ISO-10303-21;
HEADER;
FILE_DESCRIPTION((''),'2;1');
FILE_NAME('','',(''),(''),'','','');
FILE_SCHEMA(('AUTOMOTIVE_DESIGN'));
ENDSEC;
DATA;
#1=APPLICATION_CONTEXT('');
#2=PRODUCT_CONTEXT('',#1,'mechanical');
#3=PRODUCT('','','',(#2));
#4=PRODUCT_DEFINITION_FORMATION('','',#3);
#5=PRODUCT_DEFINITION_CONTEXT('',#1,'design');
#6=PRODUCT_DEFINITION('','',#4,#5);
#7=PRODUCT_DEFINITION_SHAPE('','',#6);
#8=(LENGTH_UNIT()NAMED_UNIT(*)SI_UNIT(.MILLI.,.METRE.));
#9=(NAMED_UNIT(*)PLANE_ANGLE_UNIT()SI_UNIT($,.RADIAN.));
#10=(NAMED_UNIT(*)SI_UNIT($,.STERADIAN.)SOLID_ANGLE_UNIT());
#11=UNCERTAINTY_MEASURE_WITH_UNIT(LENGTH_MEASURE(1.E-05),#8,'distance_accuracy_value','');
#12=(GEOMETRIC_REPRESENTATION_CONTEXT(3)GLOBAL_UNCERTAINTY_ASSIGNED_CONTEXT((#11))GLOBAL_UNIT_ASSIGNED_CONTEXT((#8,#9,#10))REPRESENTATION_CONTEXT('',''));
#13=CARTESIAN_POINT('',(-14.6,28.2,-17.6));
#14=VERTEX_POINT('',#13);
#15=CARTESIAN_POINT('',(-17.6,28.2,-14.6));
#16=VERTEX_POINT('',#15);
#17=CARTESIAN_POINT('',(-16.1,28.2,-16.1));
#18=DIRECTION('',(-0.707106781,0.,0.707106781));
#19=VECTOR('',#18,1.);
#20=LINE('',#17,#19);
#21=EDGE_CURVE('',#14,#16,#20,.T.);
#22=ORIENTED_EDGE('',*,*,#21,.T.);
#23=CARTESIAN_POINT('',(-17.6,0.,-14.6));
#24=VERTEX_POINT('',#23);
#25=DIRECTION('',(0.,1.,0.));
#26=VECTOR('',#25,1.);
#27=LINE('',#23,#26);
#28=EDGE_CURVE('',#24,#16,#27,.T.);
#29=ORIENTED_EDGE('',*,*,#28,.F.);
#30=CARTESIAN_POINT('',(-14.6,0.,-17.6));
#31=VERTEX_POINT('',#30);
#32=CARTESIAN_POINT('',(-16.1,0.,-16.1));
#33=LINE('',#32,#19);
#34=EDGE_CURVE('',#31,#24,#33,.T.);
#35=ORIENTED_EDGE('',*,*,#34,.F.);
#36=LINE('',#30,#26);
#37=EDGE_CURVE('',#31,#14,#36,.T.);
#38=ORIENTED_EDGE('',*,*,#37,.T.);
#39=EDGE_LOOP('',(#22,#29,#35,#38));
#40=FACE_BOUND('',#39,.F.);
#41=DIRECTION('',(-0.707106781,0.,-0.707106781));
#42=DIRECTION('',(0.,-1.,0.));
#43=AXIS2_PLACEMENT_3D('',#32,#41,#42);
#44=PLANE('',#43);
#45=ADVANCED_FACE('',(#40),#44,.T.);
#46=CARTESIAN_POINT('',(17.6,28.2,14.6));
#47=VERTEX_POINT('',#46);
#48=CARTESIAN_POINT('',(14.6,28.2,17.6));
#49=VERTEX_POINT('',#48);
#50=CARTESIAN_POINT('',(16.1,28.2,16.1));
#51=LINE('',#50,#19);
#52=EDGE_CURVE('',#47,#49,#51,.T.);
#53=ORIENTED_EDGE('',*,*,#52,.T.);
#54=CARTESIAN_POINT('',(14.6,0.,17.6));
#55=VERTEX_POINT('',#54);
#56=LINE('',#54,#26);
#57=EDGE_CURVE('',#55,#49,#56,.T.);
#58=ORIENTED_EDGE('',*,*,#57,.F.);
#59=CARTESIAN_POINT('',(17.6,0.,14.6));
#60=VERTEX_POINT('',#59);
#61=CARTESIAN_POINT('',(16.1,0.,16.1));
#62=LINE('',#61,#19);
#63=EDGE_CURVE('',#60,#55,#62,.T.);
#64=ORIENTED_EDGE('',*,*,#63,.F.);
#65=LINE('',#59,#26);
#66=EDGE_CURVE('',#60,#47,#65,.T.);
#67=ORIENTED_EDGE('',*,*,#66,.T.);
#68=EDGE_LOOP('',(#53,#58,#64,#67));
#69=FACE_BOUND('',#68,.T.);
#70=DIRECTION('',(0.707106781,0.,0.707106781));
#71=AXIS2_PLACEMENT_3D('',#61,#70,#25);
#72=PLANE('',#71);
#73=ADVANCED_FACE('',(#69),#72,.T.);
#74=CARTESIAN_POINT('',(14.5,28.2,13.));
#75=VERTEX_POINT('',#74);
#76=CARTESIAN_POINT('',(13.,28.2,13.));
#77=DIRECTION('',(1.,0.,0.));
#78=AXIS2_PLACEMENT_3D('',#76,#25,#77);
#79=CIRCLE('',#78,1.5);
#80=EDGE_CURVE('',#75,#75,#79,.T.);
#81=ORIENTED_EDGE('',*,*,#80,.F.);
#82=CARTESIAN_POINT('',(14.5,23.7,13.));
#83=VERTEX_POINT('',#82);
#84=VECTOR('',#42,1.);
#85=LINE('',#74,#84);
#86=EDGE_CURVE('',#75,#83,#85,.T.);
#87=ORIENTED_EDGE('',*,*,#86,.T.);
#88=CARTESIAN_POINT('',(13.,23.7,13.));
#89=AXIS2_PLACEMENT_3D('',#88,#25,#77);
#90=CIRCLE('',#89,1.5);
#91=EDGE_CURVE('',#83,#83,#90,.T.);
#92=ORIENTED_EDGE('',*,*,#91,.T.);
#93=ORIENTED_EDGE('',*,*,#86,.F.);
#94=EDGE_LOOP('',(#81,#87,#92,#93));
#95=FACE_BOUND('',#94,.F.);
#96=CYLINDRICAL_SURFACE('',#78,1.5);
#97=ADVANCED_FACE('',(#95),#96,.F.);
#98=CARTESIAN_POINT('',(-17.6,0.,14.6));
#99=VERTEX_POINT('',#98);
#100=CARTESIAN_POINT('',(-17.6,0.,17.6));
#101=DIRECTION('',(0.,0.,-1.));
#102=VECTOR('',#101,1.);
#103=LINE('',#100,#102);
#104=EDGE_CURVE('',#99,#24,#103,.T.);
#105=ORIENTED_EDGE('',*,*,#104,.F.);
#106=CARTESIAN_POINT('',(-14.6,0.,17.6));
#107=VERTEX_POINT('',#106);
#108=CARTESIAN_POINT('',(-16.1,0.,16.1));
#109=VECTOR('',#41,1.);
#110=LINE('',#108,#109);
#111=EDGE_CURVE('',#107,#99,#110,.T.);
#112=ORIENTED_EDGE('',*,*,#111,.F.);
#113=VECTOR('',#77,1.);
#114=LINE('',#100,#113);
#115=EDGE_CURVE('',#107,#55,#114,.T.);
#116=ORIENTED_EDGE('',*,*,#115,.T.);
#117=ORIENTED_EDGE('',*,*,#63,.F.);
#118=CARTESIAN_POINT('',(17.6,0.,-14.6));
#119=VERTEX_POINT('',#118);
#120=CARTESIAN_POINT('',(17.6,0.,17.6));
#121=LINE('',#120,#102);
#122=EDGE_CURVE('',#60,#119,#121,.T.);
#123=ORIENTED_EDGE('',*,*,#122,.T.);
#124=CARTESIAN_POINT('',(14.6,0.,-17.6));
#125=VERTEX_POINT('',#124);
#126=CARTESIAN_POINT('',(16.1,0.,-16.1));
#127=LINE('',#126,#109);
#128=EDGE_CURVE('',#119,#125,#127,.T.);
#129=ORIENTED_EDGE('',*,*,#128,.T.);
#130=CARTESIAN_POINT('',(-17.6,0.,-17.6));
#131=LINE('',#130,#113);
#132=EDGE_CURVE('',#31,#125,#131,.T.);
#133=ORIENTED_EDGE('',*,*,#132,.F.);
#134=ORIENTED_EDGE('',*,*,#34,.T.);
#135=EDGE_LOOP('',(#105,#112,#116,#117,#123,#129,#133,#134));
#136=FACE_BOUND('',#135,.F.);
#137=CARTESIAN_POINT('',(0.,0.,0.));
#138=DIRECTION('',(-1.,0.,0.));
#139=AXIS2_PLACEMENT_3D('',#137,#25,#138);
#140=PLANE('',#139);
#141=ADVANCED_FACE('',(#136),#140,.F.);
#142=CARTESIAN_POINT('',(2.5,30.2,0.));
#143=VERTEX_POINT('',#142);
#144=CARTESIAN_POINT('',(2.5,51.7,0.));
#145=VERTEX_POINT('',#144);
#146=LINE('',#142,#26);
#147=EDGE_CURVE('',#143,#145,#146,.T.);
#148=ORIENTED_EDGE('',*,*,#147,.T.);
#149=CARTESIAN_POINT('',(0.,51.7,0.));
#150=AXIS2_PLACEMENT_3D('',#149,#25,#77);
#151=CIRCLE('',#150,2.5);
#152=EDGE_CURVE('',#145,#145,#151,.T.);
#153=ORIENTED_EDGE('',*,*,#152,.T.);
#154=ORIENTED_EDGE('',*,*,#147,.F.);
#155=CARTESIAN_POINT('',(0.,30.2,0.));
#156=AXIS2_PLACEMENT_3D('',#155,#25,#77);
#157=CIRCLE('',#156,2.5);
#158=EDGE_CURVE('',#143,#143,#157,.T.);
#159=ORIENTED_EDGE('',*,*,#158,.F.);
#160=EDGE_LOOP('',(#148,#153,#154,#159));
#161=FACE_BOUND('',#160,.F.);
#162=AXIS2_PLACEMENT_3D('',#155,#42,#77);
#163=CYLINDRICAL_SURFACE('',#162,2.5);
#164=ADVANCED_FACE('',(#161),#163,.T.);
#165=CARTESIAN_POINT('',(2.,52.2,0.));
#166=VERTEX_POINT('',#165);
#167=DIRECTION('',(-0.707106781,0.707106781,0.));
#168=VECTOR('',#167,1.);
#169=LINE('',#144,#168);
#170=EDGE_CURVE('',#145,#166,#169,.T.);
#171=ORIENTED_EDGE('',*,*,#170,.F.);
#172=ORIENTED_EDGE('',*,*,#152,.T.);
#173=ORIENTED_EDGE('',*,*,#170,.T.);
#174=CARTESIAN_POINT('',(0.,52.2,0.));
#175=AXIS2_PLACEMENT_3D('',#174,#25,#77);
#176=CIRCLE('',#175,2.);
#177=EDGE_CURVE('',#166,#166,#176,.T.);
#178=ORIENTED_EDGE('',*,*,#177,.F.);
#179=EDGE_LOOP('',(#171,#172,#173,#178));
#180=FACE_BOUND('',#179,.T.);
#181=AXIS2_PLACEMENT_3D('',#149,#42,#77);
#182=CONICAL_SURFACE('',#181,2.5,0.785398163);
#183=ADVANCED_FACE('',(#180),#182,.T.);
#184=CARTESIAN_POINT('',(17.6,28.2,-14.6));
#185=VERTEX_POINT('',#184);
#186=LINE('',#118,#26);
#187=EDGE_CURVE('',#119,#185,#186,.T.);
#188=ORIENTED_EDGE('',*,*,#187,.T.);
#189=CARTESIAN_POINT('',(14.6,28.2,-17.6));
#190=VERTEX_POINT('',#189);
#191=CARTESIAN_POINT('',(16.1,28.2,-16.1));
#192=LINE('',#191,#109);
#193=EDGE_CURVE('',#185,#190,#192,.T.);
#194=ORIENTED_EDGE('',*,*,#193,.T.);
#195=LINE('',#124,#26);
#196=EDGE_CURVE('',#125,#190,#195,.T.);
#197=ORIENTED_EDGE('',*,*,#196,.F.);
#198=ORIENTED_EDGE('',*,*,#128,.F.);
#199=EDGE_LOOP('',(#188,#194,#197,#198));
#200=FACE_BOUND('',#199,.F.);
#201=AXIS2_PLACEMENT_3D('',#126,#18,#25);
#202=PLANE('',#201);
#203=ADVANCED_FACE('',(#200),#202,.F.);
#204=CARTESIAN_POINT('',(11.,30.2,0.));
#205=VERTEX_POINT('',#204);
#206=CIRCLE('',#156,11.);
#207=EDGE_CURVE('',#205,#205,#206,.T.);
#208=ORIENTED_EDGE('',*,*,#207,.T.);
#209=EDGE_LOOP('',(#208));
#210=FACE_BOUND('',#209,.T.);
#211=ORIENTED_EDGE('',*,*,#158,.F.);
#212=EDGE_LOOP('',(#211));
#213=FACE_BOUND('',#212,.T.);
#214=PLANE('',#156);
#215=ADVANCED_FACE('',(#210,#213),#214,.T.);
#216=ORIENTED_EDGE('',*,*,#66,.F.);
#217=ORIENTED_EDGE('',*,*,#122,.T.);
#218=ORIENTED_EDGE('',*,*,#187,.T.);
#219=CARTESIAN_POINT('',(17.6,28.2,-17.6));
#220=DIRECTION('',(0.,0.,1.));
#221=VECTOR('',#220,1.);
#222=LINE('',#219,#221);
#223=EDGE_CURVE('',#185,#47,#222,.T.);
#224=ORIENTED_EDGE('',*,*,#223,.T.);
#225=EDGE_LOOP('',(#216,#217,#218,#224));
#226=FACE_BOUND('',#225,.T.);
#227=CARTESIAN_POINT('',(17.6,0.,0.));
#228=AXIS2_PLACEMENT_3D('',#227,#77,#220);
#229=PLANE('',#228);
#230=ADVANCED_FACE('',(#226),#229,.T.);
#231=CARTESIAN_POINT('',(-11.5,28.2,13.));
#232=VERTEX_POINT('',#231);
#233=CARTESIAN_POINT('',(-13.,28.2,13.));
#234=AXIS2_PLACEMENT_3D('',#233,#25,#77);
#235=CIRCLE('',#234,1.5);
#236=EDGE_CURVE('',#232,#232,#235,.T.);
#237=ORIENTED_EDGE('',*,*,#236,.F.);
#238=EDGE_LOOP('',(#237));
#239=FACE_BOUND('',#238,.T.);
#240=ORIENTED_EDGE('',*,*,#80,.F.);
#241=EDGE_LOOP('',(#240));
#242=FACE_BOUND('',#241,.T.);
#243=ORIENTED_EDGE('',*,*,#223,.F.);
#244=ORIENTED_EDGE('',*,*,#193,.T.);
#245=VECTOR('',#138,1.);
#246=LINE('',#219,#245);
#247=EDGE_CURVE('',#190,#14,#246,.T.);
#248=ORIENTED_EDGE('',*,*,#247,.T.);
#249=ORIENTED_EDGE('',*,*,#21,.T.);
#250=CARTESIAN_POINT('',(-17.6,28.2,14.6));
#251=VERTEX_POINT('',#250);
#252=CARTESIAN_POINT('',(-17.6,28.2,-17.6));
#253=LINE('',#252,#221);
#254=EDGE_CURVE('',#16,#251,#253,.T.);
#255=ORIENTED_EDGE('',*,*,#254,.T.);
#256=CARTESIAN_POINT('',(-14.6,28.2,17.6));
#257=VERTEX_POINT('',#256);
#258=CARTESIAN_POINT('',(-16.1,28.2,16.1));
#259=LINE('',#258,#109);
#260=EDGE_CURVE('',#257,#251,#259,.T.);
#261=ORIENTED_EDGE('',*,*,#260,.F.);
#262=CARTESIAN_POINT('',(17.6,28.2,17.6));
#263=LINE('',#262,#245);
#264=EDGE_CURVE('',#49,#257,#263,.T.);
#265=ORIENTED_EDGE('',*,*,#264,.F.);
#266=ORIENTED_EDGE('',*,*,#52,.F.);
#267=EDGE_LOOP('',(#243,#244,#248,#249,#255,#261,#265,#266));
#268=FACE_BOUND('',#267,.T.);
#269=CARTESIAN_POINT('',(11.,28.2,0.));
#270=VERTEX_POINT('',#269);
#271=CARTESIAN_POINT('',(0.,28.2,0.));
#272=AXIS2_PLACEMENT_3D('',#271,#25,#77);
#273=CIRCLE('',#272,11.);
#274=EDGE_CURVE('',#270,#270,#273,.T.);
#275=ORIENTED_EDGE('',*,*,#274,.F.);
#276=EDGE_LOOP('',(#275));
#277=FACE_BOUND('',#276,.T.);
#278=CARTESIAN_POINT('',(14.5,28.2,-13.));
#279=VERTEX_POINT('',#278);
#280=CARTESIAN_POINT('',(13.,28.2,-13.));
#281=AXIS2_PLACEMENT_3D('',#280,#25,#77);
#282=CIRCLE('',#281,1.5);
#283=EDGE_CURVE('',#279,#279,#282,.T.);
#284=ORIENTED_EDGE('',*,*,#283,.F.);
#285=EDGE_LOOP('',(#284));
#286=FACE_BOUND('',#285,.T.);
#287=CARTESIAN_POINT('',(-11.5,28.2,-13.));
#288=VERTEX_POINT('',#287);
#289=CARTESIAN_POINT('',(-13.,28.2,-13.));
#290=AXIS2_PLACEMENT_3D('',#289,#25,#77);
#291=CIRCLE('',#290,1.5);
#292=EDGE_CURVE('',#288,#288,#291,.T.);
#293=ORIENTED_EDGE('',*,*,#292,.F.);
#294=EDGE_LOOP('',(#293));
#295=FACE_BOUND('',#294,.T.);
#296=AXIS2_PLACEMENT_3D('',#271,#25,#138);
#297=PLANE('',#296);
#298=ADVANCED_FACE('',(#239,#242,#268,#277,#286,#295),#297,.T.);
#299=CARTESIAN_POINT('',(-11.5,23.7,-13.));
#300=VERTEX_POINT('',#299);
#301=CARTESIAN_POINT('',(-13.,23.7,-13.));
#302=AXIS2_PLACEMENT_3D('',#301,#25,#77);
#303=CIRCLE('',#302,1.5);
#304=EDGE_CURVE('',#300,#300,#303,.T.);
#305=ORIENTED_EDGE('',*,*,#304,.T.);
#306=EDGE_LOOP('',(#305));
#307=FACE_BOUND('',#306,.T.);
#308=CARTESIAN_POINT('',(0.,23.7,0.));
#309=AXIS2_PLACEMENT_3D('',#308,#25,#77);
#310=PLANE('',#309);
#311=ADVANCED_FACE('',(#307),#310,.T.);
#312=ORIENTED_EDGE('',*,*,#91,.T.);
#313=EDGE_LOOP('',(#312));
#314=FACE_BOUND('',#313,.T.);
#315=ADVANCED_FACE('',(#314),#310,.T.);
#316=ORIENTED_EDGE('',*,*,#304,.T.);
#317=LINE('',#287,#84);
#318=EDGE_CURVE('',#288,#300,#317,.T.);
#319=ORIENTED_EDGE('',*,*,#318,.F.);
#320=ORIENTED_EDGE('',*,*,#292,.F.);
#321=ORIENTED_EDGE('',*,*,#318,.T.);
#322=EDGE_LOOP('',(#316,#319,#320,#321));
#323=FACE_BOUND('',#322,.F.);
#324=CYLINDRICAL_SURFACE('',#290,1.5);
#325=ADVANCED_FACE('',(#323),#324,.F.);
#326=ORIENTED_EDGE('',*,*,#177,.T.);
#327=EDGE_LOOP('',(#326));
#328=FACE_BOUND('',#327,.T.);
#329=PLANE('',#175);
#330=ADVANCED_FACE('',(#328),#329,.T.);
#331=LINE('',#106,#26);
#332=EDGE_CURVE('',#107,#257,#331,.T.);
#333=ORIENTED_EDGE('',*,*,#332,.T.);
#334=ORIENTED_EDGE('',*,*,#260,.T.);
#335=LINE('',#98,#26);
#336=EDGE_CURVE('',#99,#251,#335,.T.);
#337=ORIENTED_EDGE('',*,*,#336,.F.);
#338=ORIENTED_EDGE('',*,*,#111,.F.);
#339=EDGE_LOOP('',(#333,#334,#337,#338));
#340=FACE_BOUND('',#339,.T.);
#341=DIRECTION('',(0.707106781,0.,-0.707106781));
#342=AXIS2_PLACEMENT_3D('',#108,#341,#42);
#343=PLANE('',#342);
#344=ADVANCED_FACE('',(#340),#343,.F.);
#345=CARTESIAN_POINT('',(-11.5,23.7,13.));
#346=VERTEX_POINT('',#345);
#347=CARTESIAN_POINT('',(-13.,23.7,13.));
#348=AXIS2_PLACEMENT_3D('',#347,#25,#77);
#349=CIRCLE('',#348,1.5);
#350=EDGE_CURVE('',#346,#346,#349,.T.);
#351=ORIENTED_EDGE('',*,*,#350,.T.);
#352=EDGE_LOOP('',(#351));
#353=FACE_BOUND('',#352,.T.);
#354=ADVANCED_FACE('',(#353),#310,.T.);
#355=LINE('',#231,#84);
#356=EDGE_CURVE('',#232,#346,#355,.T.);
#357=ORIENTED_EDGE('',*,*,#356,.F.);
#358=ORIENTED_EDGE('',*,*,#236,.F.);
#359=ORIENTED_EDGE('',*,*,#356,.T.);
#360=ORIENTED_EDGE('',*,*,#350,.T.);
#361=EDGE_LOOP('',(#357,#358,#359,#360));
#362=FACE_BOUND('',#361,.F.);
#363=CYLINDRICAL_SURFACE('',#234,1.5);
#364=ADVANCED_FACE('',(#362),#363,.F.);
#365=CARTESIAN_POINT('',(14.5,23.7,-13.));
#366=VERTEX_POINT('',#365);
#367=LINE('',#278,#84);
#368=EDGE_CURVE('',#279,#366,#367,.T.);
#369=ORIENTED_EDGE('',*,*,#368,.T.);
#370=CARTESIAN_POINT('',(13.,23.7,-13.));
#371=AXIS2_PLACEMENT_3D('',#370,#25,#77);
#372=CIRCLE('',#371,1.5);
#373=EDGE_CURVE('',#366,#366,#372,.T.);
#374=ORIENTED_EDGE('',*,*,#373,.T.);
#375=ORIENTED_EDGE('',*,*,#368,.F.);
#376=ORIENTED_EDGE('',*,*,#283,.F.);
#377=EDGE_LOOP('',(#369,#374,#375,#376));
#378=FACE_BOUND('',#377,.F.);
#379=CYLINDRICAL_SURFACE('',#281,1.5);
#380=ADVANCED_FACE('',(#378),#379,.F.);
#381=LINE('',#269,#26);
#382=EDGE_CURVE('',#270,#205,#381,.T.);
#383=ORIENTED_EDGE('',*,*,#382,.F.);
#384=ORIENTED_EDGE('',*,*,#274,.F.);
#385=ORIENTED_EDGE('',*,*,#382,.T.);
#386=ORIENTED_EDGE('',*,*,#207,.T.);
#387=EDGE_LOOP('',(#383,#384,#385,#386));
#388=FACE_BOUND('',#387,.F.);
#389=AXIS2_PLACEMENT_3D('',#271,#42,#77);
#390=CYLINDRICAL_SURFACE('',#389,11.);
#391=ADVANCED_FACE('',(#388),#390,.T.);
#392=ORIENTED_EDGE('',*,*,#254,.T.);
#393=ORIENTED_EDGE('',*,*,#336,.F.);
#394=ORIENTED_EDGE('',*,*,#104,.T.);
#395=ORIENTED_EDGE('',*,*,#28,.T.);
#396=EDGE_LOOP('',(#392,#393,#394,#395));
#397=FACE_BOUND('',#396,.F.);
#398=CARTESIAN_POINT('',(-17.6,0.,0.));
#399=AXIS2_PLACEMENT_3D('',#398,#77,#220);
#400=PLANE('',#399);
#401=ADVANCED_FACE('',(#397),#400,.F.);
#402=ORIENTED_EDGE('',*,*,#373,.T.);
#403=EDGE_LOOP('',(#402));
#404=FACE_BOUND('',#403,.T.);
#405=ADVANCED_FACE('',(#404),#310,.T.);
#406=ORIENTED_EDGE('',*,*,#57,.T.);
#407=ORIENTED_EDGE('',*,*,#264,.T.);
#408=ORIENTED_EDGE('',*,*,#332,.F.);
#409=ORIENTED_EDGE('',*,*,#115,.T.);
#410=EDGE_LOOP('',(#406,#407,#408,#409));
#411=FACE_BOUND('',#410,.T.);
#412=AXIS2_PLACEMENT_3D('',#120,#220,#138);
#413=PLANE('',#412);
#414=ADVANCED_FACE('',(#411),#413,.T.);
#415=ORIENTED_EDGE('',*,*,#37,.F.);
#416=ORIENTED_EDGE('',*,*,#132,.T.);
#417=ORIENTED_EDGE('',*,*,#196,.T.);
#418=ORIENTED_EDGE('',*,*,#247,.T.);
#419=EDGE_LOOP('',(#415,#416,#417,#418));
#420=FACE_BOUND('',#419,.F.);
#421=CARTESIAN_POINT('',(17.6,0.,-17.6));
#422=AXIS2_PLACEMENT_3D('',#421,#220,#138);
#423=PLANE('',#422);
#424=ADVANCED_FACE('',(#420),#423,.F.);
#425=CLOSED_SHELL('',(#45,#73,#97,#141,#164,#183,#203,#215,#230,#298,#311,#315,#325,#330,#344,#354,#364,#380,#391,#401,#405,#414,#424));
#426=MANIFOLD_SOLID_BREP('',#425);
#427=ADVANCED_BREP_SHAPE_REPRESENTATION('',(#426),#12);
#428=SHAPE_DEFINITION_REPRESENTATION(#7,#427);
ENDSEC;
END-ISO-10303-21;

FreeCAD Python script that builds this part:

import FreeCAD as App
import Part
import Sketcher
Q = App.Units.Quantity


def edges_at(feature, points):
    """Names of the edges that pass closest to the given points."""
    edges = feature.Shape.Edges
    near = lambda p: min(range(len(edges)), key=lambda i: edges[i].distToShape(Part.Vertex(*p))[0])
    return sorted({f"Edge{near(p) + 1}" for p in points})

doc = App.newDocument("Part")
body = doc.addObject("PartDesign::Body", "Body")

# Sketch on XZ plane
sketch1 = doc.addObject("Sketcher::SketchObject", "Sketch")
body.addObject(sketch1)
sketch1.AttachmentSupport = (doc.XZ_Plane, [""])
sketch1.MapMode = "FlatFace"
sketch1.addGeometry(Part.LineSegment(App.Vector(18, 18, 0), App.Vector(18, -18, 0)), False)
sketch1.addGeometry(Part.LineSegment(App.Vector(18, -18, 0), App.Vector(-18, -18, 0)), False)
sketch1.addGeometry(Part.LineSegment(App.Vector(-18, -18, 0), App.Vector(-18, 18, 0)), False)
sketch1.addGeometry(Part.LineSegment(App.Vector(-18, 18, 0), App.Vector(18, 18, 0)), False)
sketch1.addConstraint(Sketcher.Constraint("Coincident", 0, 2, 1, 1))
sketch1.addConstraint(Sketcher.Constraint("Coincident", 1, 2, 2, 1))
sketch1.addConstraint(Sketcher.Constraint("Coincident", 2, 2, 3, 1))
sketch1.addConstraint(Sketcher.Constraint("Coincident", 3, 2, 0, 1))
sketch1.addConstraint(Sketcher.Constraint("Vertical", 0))
sketch1.addConstraint(Sketcher.Constraint("Horizontal", 1))
sketch1.addConstraint(Sketcher.Constraint("Vertical", 2))
sketch1.addConstraint(Sketcher.Constraint("Horizontal", 3))
sketch1.addConstraint(Sketcher.Constraint("Symmetric", 0, 2, 2, 2, -1, 1))
sketch1.addConstraint(Sketcher.Constraint("Equal", 3, 0))
sketch1.addConstraint(Sketcher.Constraint("DistanceX", -1, 1, 0, 2, Q("17.6 mm")))
pad1 = doc.addObject("PartDesign::Pad", "Pad")
body.addObject(pad1)
pad1.Profile = sketch1
pad1.Length = 28.2
pad1.Reversed = True

# Sketch on XZ plane
sketch2 = doc.addObject("Sketcher::SketchObject", "Sketch001")
body.addObject(sketch2)
sketch2.AttachmentSupport = (doc.XZ_Plane, [""])
sketch2.MapMode = "FlatFace"
sketch2.AttachmentOffset = App.Placement(App.Vector(0, 0, -28.2), App.Rotation())
sketch2.addGeometry(Part.Circle(App.Vector(13, -13, 0), App.Vector(0, 0, 1), 1.5), False)
sketch2.addGeometry(Part.Circle(App.Vector(-13, -13, 0), App.Vector(0, 0, 1), 1.5), False)
sketch2.addGeometry(Part.Circle(App.Vector(13, 13, 0), App.Vector(0, 0, 1), 1.5), False)
sketch2.addGeometry(Part.Circle(App.Vector(-13, 13, 0), App.Vector(0, 0, 1), 1.5), False)
sketch2.addConstraint(Sketcher.Constraint("Equal", 0, 1))
sketch2.addConstraint(Sketcher.Constraint("Equal", 1, 2))
sketch2.addConstraint(Sketcher.Constraint("Equal", 2, 3))
sketch2.addConstraint(Sketcher.Constraint("Symmetric", 1, 3, 2, 3, -1, 1))
sketch2.addConstraint(Sketcher.Constraint("Symmetric", 0, 3, 3, 3, -1, 1))
sketch2.addConstraint(Sketcher.Constraint("Symmetric", 0, 3, 1, 3, -2))
sketch2.addConstraint(Sketcher.Constraint("Diameter", 0, Q("3 mm")))
sketch2.addConstraint(Sketcher.Constraint("DistanceX", -1, 1, 0, 3, Q("13 mm")))
sketch2.addConstraint(Sketcher.Constraint("DistanceY", 0, 3, -1, 1, Q("13 mm")))
pocket1 = doc.addObject("PartDesign::Pocket", "Pocket")
body.addObject(pocket1)
pocket1.Profile = sketch2
pocket1.Length = 4.5
pocket1.Reversed = True
doc.recompute()

chamfer = doc.addObject("PartDesign::Chamfer", "Chamfer")
body.addObject(chamfer)
chamfer.Base = (pocket1, edges_at(pocket1, [
    (17.6, 14.1, 17.6),
    (17.6, 14.1, -17.6),
    (-17.6, 14.1, 17.6),
    (-17.6, 14.1, -17.6),
]))
chamfer.Size = 3

# Sketch on XZ plane
sketch3 = doc.addObject("Sketcher::SketchObject", "Sketch002")
body.addObject(sketch3)
sketch3.AttachmentSupport = (doc.XZ_Plane, [""])
sketch3.MapMode = "FlatFace"
sketch3.AttachmentOffset = App.Placement(App.Vector(0, 0, -28.2), App.Rotation())
sketch3.addGeometry(Part.Circle(App.Vector(0, 0, 0), App.Vector(0, 0, 1), 11), False)
sketch3.addConstraint(Sketcher.Constraint("Coincident", 0, 3, -1, 1))
sketch3.addConstraint(Sketcher.Constraint("Diameter", 0, Q("22 mm")))
pad2 = doc.addObject("PartDesign::Pad", "Pad001")
body.addObject(pad2)
pad2.Profile = sketch3
pad2.Length = 2
pad2.Reversed = True

# Sketch on XZ plane
sketch4 = doc.addObject("Sketcher::SketchObject", "Sketch003")
body.addObject(sketch4)
sketch4.AttachmentSupport = (doc.XZ_Plane, [""])
sketch4.MapMode = "FlatFace"
sketch4.AttachmentOffset = App.Placement(App.Vector(0, 0, -30.2), App.Rotation())
sketch4.addGeometry(Part.Circle(App.Vector(0, 0, 0), App.Vector(0, 0, 1), 2.5), False)
sketch4.addConstraint(Sketcher.Constraint("Coincident", 0, 3, -1, 1))
sketch4.addConstraint(Sketcher.Constraint("Diameter", 0, Q("5 mm")))
pad3 = doc.addObject("PartDesign::Pad", "Pad002")
body.addObject(pad3)
pad3.Profile = sketch4
pad3.Length = 22
pad3.Reversed = True
doc.recompute()

chamfer2 = doc.addObject("PartDesign::Chamfer", "Chamfer001")
body.addObject(chamfer2)
chamfer2.Base = (pad3, edges_at(pad3, [(-2.5, 52.2, 0)]))
chamfer2.Size = 0.5

doc.recompute()
